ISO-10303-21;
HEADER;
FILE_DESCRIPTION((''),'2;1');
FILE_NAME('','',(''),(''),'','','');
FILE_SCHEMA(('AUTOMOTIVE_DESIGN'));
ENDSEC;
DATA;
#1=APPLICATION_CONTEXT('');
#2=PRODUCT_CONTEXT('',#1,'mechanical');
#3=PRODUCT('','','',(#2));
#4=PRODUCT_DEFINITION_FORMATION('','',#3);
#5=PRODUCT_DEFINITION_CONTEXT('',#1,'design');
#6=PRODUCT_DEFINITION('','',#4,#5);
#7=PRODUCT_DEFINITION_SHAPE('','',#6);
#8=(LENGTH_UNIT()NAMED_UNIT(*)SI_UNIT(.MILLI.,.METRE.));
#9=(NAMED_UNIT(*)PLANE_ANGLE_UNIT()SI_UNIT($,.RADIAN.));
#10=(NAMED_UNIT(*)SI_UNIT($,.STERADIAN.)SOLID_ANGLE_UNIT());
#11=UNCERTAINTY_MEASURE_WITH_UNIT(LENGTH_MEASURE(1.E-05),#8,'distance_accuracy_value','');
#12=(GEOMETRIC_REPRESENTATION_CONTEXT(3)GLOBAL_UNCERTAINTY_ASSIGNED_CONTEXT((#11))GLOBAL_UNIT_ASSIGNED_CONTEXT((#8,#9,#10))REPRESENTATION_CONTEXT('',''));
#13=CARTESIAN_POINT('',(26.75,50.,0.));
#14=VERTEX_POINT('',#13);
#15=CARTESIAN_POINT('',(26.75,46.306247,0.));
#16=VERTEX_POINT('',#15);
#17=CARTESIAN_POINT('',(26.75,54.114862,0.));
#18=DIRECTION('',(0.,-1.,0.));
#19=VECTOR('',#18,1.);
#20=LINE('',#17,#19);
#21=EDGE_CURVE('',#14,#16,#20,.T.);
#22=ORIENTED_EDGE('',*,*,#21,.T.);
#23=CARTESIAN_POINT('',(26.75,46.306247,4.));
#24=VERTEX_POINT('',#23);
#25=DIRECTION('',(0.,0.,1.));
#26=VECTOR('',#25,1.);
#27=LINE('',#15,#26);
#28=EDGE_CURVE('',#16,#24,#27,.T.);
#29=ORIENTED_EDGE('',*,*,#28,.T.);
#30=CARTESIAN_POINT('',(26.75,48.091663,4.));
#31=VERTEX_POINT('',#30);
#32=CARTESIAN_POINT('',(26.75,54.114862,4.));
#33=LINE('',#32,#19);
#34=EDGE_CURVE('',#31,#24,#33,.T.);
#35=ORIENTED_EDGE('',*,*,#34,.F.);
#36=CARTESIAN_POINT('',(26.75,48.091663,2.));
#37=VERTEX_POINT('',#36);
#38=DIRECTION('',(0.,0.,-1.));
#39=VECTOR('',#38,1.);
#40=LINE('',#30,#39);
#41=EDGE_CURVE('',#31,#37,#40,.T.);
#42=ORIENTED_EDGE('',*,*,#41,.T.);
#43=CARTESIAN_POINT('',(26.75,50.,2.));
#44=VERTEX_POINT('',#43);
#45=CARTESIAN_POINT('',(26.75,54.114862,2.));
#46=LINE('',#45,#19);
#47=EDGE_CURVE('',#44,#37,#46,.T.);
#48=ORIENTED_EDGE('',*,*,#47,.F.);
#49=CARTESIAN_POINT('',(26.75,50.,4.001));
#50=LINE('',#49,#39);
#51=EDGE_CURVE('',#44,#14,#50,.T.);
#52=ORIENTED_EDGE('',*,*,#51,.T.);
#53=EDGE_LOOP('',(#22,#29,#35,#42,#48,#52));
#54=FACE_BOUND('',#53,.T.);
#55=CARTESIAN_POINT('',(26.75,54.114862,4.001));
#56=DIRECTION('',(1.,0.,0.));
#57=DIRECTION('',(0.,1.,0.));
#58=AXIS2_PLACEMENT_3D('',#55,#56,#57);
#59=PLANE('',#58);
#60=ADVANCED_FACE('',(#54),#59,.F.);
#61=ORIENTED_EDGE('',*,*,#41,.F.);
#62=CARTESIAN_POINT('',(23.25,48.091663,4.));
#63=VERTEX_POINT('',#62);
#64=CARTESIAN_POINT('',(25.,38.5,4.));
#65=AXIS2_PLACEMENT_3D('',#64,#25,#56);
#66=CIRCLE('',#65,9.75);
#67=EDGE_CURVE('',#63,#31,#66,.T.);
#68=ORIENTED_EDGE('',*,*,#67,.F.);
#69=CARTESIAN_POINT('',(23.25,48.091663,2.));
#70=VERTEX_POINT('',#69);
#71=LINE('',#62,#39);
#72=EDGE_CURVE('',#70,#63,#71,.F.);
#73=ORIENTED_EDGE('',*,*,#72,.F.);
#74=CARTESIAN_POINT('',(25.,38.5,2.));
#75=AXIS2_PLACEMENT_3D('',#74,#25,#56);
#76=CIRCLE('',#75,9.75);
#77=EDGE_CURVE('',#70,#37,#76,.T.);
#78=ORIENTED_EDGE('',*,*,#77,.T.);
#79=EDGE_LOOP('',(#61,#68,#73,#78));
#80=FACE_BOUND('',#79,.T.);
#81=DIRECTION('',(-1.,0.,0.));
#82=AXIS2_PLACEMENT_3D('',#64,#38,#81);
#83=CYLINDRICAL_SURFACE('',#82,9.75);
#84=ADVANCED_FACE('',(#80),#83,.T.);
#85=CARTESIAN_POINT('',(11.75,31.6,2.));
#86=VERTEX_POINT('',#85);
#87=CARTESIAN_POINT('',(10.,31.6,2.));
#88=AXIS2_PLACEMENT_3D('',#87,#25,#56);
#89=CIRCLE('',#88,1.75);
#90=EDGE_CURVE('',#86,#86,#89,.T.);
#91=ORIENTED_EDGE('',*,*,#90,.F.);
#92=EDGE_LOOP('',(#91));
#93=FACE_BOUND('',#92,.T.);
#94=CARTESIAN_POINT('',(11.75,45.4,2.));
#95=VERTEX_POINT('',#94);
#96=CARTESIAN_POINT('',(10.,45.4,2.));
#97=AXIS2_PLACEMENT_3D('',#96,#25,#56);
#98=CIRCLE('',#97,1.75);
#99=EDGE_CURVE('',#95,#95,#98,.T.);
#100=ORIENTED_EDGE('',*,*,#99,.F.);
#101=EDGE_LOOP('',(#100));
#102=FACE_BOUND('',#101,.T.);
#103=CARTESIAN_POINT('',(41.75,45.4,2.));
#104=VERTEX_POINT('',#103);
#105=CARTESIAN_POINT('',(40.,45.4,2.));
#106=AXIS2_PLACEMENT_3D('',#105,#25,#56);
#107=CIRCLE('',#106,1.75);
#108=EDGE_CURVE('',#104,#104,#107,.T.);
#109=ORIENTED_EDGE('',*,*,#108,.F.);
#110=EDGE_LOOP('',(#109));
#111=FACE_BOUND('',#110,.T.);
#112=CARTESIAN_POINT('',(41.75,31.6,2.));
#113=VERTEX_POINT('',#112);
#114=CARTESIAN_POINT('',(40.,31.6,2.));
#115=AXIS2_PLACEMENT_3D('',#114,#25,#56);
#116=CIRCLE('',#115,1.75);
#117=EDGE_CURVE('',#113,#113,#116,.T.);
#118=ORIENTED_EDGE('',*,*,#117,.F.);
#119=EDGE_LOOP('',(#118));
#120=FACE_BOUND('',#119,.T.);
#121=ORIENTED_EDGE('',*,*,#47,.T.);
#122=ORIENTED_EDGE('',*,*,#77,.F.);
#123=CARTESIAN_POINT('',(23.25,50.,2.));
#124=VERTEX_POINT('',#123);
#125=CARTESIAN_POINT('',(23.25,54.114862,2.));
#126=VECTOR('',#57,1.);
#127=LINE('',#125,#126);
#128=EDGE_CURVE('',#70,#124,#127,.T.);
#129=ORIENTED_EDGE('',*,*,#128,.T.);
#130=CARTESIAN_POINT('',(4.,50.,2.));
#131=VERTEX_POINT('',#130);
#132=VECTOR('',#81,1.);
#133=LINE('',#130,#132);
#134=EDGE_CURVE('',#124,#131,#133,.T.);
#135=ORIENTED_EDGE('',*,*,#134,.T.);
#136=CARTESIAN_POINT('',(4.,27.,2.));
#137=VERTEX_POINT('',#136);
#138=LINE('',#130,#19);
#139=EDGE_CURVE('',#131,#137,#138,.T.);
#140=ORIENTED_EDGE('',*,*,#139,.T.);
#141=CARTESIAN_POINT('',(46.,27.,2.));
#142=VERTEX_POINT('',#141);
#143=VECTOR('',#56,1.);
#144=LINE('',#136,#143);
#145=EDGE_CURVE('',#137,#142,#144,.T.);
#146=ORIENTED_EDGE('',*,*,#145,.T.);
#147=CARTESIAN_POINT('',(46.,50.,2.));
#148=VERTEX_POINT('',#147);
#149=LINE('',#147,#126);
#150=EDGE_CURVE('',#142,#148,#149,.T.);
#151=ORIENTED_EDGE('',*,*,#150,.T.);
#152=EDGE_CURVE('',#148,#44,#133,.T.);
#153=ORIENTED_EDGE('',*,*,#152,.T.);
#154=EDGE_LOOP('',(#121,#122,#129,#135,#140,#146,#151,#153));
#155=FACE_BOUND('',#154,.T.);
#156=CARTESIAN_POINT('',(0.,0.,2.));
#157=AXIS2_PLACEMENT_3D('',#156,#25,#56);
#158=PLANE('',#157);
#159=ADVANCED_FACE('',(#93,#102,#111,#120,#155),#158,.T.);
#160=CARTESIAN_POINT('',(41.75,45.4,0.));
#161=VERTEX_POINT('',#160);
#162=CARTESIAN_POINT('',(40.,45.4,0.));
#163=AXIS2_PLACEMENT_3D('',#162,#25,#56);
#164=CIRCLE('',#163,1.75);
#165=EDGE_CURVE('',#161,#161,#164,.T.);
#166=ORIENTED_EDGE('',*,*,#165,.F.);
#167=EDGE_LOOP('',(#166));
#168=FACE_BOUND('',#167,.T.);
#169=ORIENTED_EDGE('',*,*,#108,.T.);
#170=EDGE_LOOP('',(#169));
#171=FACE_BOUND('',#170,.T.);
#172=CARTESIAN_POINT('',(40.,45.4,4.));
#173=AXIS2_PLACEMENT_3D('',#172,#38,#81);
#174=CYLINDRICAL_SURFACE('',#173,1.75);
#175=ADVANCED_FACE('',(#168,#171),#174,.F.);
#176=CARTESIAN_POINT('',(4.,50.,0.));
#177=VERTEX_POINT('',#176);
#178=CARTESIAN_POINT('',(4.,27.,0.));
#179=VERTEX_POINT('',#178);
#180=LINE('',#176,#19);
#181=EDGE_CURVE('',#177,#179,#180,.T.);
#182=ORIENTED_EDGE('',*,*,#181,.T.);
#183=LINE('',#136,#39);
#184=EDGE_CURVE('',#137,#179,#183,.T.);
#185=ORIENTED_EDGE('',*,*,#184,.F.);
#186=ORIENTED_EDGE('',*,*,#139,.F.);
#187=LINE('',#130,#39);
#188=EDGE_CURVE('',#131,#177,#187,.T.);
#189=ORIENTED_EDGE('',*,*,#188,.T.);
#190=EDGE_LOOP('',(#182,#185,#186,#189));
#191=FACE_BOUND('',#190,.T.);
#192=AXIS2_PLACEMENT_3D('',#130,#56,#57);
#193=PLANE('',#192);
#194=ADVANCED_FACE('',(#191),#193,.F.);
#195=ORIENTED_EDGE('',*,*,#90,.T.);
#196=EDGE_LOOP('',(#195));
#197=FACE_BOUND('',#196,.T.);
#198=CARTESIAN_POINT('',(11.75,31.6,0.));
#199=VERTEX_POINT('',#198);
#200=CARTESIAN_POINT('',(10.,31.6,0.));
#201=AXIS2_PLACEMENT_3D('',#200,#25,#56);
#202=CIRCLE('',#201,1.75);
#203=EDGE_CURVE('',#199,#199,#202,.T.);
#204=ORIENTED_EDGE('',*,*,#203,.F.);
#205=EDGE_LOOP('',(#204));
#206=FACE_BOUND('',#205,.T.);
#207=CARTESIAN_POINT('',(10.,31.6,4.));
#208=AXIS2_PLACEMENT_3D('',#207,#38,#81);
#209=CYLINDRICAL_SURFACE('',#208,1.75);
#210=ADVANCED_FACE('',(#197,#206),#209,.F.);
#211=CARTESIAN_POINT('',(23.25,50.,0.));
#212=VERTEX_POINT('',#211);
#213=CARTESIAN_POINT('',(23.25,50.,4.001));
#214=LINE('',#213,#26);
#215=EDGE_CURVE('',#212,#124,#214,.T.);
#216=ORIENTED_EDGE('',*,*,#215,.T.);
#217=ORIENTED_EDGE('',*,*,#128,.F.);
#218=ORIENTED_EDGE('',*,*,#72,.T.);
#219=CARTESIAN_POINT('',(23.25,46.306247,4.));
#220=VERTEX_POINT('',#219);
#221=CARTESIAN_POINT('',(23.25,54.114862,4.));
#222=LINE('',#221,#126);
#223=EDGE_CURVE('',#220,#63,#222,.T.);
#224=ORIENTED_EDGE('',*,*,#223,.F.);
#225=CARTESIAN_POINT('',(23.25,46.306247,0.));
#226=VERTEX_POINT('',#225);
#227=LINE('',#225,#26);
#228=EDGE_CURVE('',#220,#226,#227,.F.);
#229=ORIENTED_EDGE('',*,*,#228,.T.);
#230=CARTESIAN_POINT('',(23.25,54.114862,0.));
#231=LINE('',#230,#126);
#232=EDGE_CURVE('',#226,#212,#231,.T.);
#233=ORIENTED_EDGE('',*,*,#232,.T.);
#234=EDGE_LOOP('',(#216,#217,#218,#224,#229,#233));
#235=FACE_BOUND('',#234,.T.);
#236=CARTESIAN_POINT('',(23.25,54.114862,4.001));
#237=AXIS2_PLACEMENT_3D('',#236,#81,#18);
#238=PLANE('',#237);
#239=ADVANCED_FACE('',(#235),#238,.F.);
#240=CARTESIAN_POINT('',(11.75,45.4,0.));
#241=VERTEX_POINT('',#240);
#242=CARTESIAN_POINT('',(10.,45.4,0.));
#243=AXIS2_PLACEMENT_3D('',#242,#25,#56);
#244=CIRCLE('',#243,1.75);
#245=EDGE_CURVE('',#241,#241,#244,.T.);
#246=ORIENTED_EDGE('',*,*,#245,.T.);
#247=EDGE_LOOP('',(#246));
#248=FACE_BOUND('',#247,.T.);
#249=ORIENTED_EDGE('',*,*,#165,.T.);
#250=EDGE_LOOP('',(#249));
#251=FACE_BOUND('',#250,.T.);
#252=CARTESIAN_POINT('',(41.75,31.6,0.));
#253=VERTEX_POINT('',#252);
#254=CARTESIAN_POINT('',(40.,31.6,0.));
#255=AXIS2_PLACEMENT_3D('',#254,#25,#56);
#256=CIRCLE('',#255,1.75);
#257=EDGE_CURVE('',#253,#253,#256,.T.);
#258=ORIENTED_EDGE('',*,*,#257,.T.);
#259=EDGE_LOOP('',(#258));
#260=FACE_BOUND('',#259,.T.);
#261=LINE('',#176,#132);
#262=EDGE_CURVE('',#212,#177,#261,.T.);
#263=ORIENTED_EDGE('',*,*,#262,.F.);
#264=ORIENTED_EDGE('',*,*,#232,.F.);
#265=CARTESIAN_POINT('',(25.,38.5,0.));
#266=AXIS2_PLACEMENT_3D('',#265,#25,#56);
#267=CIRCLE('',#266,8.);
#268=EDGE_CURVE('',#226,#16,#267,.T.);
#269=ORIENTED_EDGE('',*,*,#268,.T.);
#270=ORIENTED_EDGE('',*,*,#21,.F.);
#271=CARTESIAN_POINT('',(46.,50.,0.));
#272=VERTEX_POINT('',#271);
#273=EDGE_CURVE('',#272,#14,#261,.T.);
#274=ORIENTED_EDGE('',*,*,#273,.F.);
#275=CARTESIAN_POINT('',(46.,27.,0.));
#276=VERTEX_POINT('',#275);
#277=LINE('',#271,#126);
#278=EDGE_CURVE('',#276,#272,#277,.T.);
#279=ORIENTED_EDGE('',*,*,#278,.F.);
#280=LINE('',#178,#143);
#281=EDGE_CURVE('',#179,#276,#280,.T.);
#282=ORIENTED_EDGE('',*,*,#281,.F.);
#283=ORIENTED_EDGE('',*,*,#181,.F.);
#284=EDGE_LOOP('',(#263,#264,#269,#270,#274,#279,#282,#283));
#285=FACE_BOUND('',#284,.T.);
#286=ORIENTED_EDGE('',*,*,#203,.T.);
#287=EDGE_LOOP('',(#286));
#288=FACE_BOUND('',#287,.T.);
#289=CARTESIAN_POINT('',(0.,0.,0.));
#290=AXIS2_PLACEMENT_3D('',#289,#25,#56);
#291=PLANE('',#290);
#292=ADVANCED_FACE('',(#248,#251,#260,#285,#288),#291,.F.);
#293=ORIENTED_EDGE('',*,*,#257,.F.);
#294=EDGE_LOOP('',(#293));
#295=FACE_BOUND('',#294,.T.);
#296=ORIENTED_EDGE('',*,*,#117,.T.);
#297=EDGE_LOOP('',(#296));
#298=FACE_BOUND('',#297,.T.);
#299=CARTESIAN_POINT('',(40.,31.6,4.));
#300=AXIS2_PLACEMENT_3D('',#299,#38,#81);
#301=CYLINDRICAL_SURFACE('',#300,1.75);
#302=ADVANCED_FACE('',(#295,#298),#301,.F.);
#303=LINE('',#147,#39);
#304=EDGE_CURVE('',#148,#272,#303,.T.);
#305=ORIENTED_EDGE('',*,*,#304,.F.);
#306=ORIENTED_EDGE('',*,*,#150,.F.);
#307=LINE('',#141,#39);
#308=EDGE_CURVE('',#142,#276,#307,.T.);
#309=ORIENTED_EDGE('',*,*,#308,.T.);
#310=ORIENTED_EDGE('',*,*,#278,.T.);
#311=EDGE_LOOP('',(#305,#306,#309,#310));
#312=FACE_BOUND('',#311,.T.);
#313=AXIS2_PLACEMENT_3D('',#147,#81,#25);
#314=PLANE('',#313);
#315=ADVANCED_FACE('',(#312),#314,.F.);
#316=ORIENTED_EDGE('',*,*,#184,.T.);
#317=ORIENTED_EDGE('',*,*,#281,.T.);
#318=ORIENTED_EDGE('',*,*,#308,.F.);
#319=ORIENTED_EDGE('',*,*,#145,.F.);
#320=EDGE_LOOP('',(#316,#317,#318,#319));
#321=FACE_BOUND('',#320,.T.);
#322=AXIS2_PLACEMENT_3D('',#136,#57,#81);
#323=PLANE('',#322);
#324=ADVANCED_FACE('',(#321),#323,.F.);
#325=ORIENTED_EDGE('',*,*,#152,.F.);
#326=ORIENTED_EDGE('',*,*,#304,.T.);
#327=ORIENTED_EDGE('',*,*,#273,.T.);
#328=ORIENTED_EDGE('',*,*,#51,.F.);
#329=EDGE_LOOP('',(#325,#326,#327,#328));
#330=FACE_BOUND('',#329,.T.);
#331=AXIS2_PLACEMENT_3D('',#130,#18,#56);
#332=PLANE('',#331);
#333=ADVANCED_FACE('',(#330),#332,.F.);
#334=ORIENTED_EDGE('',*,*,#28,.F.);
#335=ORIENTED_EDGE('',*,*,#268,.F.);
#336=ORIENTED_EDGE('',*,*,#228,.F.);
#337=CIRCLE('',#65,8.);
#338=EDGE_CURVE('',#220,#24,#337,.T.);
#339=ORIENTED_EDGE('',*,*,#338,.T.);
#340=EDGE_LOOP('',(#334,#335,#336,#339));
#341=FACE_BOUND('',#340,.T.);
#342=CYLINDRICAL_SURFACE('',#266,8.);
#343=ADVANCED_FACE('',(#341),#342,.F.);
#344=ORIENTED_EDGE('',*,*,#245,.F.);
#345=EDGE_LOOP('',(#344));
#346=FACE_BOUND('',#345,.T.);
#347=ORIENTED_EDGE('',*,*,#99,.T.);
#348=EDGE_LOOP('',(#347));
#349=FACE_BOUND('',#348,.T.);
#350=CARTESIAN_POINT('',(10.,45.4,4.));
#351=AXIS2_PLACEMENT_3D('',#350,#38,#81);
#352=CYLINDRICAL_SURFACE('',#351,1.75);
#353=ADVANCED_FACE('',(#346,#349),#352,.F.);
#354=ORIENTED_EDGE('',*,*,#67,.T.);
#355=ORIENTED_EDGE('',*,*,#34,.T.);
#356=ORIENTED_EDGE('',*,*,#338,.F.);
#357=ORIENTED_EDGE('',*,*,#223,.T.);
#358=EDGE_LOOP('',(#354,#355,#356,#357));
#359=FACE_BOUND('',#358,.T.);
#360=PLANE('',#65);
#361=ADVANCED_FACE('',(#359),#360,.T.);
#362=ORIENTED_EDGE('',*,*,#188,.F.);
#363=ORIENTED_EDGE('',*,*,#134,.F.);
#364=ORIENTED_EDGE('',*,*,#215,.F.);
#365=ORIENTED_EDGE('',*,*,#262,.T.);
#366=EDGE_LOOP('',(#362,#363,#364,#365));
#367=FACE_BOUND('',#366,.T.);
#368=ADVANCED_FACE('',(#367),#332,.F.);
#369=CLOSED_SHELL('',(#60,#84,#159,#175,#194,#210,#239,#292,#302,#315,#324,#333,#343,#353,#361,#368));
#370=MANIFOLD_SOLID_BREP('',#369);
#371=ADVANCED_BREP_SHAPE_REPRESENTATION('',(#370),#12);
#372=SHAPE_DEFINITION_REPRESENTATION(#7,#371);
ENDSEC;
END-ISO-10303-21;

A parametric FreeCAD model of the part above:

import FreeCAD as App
import Part
import Sketcher

V = App.Vector

doc = App.newDocument("Part")
params = doc.addObject("Spreadsheet::Sheet", "Params")
for row, (alias, value) in enumerate([
    ("sketch1_width", "42 mm"),
    ("sketch1_height", "23 mm"),
    ("pad1_length", "2 mm"),
    ("sketch2_diameter", "19.5 mm"),
    ("pad2_length", "2 mm"),
    ("sketch3_diameter", "16 mm"),
    ("sketch4_diameter", "3.5 mm"),
    ("sketch5_width", "3.5 mm"),
], start=1):
    params.set(f"A{row}", alias)
    params.set(f"B{row}", "=" + value)
    params.setAlias(f"B{row}", alias)

body = doc.addObject("PartDesign::Body", "Body")

# Sketch on XY plane
sketch1 = body.newObject("Sketcher::SketchObject", "Sketch")
sketch1.AttachmentSupport = (doc.getObject("XY_Plane"), [""])
sketch1.MapMode = "FlatFace"
sketch1.addGeometry(Part.LineSegment(V(4, 50, 0), V(4, 27, 0)), False)
sketch1.addGeometry(Part.LineSegment(V(4, 27, 0), V(46, 27, 0)), False)
sketch1.addGeometry(Part.LineSegment(V(46, 27, 0), V(46, 50, 0)), False)
sketch1.addGeometry(Part.LineSegment(V(46, 50, 0), V(4, 50, 0)), False)
sketch1.addConstraint(Sketcher.Constraint("Coincident", 0, 2, 1, 1))
sketch1.addConstraint(Sketcher.Constraint("Coincident", 1, 2, 2, 1))
sketch1.addConstraint(Sketcher.Constraint("Coincident", 2, 2, 3, 1))
sketch1.addConstraint(Sketcher.Constraint("Coincident", 3, 2, 0, 1))
sketch1.addConstraint(Sketcher.Constraint("Vertical", 0))
sketch1.addConstraint(Sketcher.Constraint("Horizontal", 1))
sketch1.addConstraint(Sketcher.Constraint("Vertical", 2))
sketch1.addConstraint(Sketcher.Constraint("Horizontal", 3))
sketch1.addConstraint(Sketcher.Constraint("DistanceX", 1, 1, 1, 2, 42.0))
sketch1.addConstraint(Sketcher.Constraint("DistanceY", 0, 2, 0, 1, 23.0))
sketch1.addConstraint(Sketcher.Constraint("DistanceX", -1, 1, 0, 2, 4.0))
sketch1.addConstraint(Sketcher.Constraint("DistanceY", -1, 1, 0, 2, 27.0))
sketch1.setExpression("Constraints[8]", "Params.sketch1_width")
sketch1.setExpression("Constraints[9]", "Params.sketch1_height")
pad1 = body.newObject("PartDesign::Pad", "Pad")
pad1.Profile = sketch1
pad1.setExpression("Length", "Params.pad1_length")

# Sketch on XY plane
sketch2 = body.newObject("Sketcher::SketchObject", "Sketch001")
sketch2.AttachmentSupport = (doc.getObject("XY_Plane"), [""])
sketch2.MapMode = "FlatFace"
sketch2.AttachmentOffset = App.Placement(V(0, 0, 2), App.Rotation())
sketch2.addGeometry(Part.Circle(V(25, 38.5, 0), V(0, 0, 1), 9.75), False)
sketch2.addConstraint(Sketcher.Constraint("Diameter", 0, 19.5))
sketch2.addConstraint(Sketcher.Constraint("DistanceX", -1, 1, 0, 3, 25.0))
sketch2.addConstraint(Sketcher.Constraint("DistanceY", -1, 1, 0, 3, 38.5))
sketch2.setExpression("Constraints[0]", "Params.sketch2_diameter")
pad2 = body.newObject("PartDesign::Pad", "Pad001")
pad2.Profile = sketch2
pad2.setExpression("Length", "Params.pad2_length")

# Sketch on XY plane
sketch3 = body.newObject("Sketcher::SketchObject", "Sketch002")
sketch3.AttachmentSupport = (doc.getObject("XY_Plane"), [""])
sketch3.MapMode = "FlatFace"
sketch3.AttachmentOffset = App.Placement(V(0, 0, 4), App.Rotation())
sketch3.addGeometry(Part.Circle(V(25, 38.5, 0), V(0, 0, 1), 8), False)
sketch3.addConstraint(Sketcher.Constraint("Diameter", 0, 16.0))
sketch3.addConstraint(Sketcher.Constraint("DistanceX", -1, 1, 0, 3, 25.0))
sketch3.addConstraint(Sketcher.Constraint("DistanceY", -1, 1, 0, 3, 38.5))
sketch3.setExpression("Constraints[0]", "Params.sketch3_diameter")
pocket1 = body.newObject("PartDesign::Pocket", "Pocket")
pocket1.Profile = sketch3
pocket1.Type = "ThroughAll"

# Sketch on XY plane
sketch4 = body.newObject("Sketcher::SketchObject", "Sketch003")
sketch4.AttachmentSupport = (doc.getObject("XY_Plane"), [""])
sketch4.MapMode = "FlatFace"
sketch4.addGeometry(Part.Circle(V(40, 45.4, 0), V(0, 0, 1), 1.75), False)
sketch4.addGeometry(Part.Circle(V(40, 31.6, 0), V(0, 0, 1), 1.75), False)
sketch4.addGeometry(Part.Circle(V(10, 31.6, 0), V(0, 0, 1), 1.75), False)
sketch4.addGeometry(Part.Circle(V(10, 45.4, 0), V(0, 0, 1), 1.75), False)
sketch4.addConstraint(Sketcher.Constraint("Equal", 0, 1))
sketch4.addConstraint(Sketcher.Constraint("Equal", 1, 2))
sketch4.addConstraint(Sketcher.Constraint("Equal", 2, 3))
sketch4.addConstraint(Sketcher.Constraint("Horizontal", 1, 3, 2, 3))
sketch4.addConstraint(Sketcher.Constraint("Horizontal", 0, 3, 3, 3))
sketch4.addConstraint(Sketcher.Constraint("Vertical", 0, 3, 1, 3))
sketch4.addConstraint(Sketcher.Constraint("Vertical", 2, 3, 3, 3))
sketch4.addConstraint(Sketcher.Constraint("Diameter", 0, 3.5))
sketch4.addConstraint(Sketcher.Constraint("DistanceX", -1, 1, 0, 3, 40.0))
sketch4.addConstraint(Sketcher.Constraint("DistanceX", -1, 1, 2, 3, 10.0))
sketch4.addConstraint(Sketcher.Constraint("DistanceY", -1, 1, 0, 3, 45.4))
sketch4.addConstraint(Sketcher.Constraint("DistanceY", -1, 1, 1, 3, 31.6))
sketch4.setExpression("Constraints[7]", "Params.sketch4_diameter")
pocket2 = body.newObject("PartDesign::Pocket", "Pocket001")
pocket2.Profile = sketch4
pocket2.Type = "ThroughAll"
pocket2.Midplane = True

# Sketch on XY plane
sketch5 = body.newObject("Sketcher::SketchObject", "Sketch004")
sketch5.AttachmentSupport = (doc.getObject("XY_Plane"), [""])
sketch5.MapMode = "FlatFace"
sketch5.addGeometry(Part.LineSegment(V(26.75, 54.114862, 0), V(26.75, 39.663469, 0)), False)
sketch5.addGeometry(Part.LineSegment(V(26.75, 39.663469, 0), V(23.25, 39.663469, 0)), False)
sketch5.addGeometry(Part.LineSegment(V(23.25, 39.663469, 0), V(23.25, 54.114862, 0)), False)
sketch5.addGeometry(Part.LineSegment(V(23.25, 54.114862, 0), V(26.75, 54.114862, 0)), False)
sketch5.addConstraint(Sketcher.Constraint("Coincident", 0, 2, 1, 1))
sketch5.addConstraint(Sketcher.Constraint("Coincident", 1, 2, 2, 1))
sketch5.addConstraint(Sketcher.Constraint("Coincident", 2, 2, 3, 1))
sketch5.addConstraint(Sketcher.Constraint("Coincident", 3, 2, 0, 1))
sketch5.addConstraint(Sketcher.Constraint("Vertical", 0))
sketch5.addConstraint(Sketcher.Constraint("Horizontal", 1))
sketch5.addConstraint(Sketcher.Constraint("Vertical", 2))
sketch5.addConstraint(Sketcher.Constraint("Horizontal", 3))
sketch5.addConstraint(Sketcher.Constraint("DistanceX", 1, 2, 1, 1, 3.5))
sketch5.addConstraint(Sketcher.Constraint("DistanceX", -1, 1, 0, 2, 26.75))
sketch5.addConstraint(Sketcher.Constraint("DistanceY", 0, 2, 0, 1, 14.451393))
sketch5.addConstraint(Sketcher.Constraint("DistanceY", -1, 1, 0, 2, 39.663469))
sketch5.setExpression("Constraints[8]", "Params.sketch5_width")
pocket3 = body.newObject("PartDesign::Pocket", "Pocket002")
pocket3.Profile = sketch5
pocket3.Type = "UpToFirst"
pocket3.Reversed = True

doc.recompute()
